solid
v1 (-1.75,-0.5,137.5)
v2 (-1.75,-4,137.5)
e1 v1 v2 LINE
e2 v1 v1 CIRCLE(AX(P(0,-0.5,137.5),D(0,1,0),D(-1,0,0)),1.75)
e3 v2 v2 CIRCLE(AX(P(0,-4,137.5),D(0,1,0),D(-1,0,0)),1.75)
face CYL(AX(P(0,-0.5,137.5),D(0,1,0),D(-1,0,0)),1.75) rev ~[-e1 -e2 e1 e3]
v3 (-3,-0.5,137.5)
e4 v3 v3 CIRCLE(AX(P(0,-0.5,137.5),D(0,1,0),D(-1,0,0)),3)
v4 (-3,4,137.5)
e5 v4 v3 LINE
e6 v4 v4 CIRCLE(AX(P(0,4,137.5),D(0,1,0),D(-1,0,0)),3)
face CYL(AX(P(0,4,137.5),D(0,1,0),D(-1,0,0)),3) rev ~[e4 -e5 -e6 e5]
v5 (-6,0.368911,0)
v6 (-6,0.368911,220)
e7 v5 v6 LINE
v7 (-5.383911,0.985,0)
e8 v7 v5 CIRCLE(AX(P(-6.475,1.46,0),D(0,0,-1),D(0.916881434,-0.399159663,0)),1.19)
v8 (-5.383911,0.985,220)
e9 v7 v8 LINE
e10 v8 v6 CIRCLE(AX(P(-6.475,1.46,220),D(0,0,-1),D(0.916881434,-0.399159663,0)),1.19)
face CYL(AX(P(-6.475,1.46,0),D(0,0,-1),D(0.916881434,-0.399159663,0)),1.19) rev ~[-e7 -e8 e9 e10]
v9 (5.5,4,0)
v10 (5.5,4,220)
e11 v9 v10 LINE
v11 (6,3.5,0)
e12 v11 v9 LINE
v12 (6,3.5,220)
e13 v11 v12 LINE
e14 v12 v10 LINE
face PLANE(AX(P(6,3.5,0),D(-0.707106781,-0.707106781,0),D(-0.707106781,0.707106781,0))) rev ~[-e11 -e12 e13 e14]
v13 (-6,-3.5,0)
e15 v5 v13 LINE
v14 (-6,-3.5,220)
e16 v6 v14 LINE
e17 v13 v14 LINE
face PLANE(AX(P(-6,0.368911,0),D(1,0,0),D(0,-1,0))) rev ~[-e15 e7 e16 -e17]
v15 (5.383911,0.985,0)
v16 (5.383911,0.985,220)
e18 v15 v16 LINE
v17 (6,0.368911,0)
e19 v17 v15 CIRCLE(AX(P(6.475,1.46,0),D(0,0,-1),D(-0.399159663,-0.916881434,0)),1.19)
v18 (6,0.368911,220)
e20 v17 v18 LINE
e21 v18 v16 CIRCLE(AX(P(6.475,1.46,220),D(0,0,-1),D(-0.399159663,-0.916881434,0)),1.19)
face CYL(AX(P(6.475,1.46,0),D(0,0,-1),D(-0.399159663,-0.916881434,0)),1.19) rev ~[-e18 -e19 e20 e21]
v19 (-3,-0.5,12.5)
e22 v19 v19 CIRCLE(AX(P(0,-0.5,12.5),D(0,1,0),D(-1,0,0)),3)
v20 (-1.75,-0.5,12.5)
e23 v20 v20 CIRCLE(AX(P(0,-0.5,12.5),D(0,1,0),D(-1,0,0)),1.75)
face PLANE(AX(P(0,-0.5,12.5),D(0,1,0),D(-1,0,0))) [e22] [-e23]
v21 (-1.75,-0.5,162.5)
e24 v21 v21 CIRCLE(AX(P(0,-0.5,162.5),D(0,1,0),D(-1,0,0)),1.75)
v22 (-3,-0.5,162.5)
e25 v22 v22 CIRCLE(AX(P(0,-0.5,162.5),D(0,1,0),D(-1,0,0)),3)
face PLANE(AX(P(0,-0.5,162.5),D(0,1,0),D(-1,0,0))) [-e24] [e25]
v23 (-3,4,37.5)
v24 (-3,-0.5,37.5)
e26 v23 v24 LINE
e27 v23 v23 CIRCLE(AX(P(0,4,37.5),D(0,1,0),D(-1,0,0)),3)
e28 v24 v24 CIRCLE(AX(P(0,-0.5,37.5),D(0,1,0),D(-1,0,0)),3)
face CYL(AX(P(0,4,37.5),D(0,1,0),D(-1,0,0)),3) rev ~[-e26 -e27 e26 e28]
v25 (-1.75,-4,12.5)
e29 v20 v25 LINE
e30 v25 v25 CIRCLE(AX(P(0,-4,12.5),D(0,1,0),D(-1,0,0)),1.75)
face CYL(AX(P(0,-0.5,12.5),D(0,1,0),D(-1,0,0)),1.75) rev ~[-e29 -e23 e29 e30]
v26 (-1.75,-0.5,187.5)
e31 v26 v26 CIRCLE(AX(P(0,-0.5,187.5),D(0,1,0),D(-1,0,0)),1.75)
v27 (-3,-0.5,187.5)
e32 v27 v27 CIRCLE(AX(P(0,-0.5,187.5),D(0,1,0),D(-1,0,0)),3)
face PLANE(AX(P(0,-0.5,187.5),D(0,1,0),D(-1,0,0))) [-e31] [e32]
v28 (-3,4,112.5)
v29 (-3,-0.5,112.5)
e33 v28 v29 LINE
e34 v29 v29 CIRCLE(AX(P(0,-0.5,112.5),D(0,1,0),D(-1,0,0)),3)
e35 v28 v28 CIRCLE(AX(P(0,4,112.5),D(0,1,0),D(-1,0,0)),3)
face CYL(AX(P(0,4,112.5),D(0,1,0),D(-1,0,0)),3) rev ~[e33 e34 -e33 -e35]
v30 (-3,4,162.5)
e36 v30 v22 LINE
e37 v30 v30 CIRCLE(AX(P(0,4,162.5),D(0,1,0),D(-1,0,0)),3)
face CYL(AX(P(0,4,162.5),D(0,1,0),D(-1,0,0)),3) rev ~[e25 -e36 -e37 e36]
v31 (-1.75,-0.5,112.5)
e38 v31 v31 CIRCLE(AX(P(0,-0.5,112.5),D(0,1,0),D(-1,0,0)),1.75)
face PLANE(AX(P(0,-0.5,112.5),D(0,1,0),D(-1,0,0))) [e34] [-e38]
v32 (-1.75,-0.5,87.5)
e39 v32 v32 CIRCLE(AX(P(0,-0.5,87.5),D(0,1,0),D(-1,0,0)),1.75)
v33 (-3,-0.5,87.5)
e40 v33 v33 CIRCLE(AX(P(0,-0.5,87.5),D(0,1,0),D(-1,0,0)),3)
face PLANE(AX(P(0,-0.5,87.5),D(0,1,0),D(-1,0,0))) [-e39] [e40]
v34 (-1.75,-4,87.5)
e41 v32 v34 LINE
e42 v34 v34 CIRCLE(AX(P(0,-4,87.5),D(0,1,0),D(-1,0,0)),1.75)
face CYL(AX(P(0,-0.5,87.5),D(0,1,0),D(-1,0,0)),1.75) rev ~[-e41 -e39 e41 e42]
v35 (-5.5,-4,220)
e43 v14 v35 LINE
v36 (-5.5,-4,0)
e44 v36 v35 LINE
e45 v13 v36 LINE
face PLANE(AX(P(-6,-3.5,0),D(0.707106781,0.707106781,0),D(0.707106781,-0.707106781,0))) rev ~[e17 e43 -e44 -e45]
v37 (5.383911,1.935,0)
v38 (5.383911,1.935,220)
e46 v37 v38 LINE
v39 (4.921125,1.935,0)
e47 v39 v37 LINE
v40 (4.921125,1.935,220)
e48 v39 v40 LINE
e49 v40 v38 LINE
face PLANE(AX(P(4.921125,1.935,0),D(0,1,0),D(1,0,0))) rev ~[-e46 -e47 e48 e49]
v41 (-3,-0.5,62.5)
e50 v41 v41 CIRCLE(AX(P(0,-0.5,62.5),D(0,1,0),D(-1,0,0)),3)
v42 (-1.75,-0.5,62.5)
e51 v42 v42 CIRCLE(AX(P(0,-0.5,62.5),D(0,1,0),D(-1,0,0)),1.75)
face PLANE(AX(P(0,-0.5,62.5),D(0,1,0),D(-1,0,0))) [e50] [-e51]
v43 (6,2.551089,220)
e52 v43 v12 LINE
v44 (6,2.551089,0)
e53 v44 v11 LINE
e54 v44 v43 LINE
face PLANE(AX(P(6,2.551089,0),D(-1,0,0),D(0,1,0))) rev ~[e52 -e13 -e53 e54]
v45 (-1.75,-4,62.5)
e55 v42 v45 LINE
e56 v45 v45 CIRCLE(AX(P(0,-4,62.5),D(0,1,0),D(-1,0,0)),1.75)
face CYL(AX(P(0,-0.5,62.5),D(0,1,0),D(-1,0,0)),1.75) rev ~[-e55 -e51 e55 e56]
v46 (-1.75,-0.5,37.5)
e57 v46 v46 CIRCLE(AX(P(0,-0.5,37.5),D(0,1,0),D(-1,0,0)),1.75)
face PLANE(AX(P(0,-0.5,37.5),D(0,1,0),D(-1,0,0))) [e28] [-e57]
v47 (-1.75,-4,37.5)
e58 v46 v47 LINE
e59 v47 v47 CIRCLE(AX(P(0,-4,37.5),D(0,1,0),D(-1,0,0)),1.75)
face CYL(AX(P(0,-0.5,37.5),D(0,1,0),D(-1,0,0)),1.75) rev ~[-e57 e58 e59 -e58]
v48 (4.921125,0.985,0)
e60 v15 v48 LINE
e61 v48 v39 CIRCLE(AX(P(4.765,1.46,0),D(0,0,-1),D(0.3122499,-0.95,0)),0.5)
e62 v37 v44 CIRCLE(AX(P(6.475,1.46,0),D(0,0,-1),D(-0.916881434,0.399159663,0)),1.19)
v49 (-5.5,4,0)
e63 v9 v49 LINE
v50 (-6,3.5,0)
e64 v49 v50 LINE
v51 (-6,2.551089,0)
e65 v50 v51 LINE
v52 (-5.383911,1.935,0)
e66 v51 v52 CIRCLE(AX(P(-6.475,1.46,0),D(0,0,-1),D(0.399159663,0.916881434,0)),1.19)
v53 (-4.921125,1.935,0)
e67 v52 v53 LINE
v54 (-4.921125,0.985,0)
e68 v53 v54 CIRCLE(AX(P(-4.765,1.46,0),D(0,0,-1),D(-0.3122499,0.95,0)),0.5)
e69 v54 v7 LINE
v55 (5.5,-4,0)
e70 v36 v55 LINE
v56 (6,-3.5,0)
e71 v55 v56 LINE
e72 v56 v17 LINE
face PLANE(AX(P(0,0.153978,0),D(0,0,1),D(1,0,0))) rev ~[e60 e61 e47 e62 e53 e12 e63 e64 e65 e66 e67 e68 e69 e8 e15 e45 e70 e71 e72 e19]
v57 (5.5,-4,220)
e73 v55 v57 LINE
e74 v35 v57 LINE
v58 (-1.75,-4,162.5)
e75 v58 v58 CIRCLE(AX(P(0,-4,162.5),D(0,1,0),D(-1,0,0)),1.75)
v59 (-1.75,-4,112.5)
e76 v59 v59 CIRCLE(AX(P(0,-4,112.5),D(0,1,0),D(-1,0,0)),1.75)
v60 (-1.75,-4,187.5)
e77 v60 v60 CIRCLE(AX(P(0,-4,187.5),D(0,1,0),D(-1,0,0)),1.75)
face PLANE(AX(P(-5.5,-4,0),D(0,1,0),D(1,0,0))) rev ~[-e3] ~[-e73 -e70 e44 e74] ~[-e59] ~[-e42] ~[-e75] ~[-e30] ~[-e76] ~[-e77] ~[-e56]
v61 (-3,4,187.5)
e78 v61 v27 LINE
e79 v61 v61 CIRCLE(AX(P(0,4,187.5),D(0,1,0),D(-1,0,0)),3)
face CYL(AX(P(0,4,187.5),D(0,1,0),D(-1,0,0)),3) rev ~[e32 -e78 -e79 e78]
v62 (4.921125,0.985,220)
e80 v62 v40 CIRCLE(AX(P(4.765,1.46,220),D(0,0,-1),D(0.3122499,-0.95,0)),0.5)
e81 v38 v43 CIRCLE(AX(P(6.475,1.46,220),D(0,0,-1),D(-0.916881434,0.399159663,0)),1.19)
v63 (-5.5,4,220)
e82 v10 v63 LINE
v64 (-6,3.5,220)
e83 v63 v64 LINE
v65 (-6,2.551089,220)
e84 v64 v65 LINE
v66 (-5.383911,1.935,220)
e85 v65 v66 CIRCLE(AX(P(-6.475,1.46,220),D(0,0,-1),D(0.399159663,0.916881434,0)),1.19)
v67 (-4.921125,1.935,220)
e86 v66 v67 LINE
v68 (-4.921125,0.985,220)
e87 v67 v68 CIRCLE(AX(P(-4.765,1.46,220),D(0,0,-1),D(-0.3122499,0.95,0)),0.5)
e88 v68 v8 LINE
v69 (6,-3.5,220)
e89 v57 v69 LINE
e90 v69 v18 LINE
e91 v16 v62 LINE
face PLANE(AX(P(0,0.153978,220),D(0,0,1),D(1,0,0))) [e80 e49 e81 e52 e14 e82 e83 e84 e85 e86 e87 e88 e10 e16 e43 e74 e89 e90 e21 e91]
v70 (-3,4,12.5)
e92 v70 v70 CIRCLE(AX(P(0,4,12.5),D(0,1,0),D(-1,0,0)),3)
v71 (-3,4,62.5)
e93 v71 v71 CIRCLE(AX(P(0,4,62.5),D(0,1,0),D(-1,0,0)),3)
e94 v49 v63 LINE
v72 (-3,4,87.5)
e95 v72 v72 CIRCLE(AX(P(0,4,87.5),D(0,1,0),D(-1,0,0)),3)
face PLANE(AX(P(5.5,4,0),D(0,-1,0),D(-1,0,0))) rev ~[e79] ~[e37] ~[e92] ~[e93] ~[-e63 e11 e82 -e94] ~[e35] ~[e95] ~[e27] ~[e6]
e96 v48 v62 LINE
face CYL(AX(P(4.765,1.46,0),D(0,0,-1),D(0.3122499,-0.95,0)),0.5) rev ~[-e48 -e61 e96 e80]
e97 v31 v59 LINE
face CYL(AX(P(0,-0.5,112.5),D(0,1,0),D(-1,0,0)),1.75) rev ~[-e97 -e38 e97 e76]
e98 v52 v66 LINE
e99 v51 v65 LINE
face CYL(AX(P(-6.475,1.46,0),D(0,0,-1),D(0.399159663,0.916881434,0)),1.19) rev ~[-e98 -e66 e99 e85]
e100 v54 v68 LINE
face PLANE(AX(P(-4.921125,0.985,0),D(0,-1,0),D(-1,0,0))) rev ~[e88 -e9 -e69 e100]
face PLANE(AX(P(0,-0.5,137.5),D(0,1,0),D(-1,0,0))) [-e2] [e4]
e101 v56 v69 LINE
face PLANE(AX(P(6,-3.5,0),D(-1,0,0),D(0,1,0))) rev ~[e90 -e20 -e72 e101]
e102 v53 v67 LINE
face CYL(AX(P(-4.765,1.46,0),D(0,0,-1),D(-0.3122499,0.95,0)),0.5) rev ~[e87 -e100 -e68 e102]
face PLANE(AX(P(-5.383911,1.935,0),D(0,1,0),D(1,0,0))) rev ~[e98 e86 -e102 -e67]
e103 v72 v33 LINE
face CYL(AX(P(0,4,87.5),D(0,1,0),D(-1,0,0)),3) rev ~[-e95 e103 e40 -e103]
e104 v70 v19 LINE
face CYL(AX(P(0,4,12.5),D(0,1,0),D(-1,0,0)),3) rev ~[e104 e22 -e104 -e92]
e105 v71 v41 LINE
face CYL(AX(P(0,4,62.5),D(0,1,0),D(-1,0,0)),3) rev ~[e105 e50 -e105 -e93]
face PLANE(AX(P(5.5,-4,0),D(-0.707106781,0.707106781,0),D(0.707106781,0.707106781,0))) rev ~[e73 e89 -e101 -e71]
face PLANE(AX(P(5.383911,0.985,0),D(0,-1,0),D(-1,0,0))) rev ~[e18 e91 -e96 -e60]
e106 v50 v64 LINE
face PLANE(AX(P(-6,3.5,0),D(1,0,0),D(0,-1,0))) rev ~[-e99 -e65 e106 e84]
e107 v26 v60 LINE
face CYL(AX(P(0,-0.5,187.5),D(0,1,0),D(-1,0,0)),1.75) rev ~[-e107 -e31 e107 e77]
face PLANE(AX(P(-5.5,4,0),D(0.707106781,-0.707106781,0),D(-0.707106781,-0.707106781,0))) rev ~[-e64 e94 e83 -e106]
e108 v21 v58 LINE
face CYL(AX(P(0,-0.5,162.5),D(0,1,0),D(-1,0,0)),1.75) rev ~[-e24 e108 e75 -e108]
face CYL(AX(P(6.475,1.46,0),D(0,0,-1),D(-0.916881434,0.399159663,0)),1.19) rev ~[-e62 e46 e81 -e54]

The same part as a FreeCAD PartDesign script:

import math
import FreeCAD as App
import Part
import Sketcher
from FreeCAD import Vector
Q = App.Units.Quantity

doc = App.newDocument("Part")
body = doc.addObject("PartDesign::Body", "Body")

# Sketch on XY plane
sketch1 = body.newObject("Sketcher::SketchObject", "Sketch")
sketch1.AttachmentSupport = (doc.getObject("XY_Plane"), [""])
sketch1.MapMode = "FlatFace"
sketch1.addGeometry([
    Part.LineSegment(Vector(6, -3.5, 0), Vector(6, 0.368911, 0)),  # 0
    Part.ArcOfCircle(Part.Circle(Vector(6.475, 1.46, 0), Vector(0, 0, 1), 1.19), math.radians(-156.474345), math.radians(-113.525655)),  # 1
    Part.LineSegment(Vector(5.383911, 0.985, 0), Vector(4.921125, 0.985, 0)),  # 2
    Part.ArcOfCircle(Part.Circle(Vector(4.765, 1.46, 0), Vector(0, 0, 1), 0.5), math.radians(71.805128), math.radians(288.194872)),  # 3
    Part.LineSegment(Vector(4.921125, 1.935, 0), Vector(5.383911, 1.935, 0)),  # 4
    Part.ArcOfCircle(Part.Circle(Vector(6.475, 1.46, 0), Vector(0, 0, 1), 1.19), math.radians(113.525655), math.radians(156.474345)),  # 5
    Part.LineSegment(Vector(6, 2.551089, 0), Vector(6, 3.5, 0)),  # 6
    Part.LineSegment(Vector(6, 3.5, 0), Vector(5.5, 4, 0)),  # 7
    Part.LineSegment(Vector(5.5, 4, 0), Vector(-5.5, 4, 0)),  # 8
    Part.LineSegment(Vector(-5.5, 4, 0), Vector(-6, 3.5, 0)),  # 9
    Part.LineSegment(Vector(-6, 3.5, 0), Vector(-6, 2.551089, 0)),  # 10
    Part.ArcOfCircle(Part.Circle(Vector(-6.475, 1.46, 0), Vector(0, 0, 1), 1.19), math.radians(23.525655), math.radians(66.474345)),  # 11
    Part.LineSegment(Vector(-5.383911, 1.935, 0), Vector(-4.921125, 1.935, 0)),  # 12
    Part.ArcOfCircle(Part.Circle(Vector(-4.765, 1.46, 0), Vector(0, 0, 1), 0.5), math.radians(-108.194872), math.radians(108.194872)),  # 13
    Part.LineSegment(Vector(-4.921125, 0.985, 0), Vector(-5.383911, 0.985, 0)),  # 14
    Part.ArcOfCircle(Part.Circle(Vector(-6.475, 1.46, 0), Vector(0, 0, 1), 1.19), math.radians(-66.474345), math.radians(-23.525655)),  # 15
    Part.LineSegment(Vector(-6, 0.368911, 0), Vector(-6, -3.5, 0)),  # 16
    Part.LineSegment(Vector(-6, -3.5, 0), Vector(-5.5, -4, 0)),  # 17
    Part.LineSegment(Vector(-5.5, -4, 0), Vector(5.5, -4, 0)),  # 18
    Part.LineSegment(Vector(5.5, -4, 0), Vector(6, -3.5, 0)),  # 19
], False)
sketch1.addConstraint([
    Sketcher.Constraint("Coincident", 0, 2, 1, 2),
    Sketcher.Constraint("Coincident", 1, 1, 2, 1),
    Sketcher.Constraint("Coincident", 2, 2, 3, 2),
    Sketcher.Constraint("Coincident", 3, 1, 4, 1),
    Sketcher.Constraint("Coincident", 4, 2, 5, 2),
    Sketcher.Constraint("Coincident", 5, 1, 6, 1),
    Sketcher.Constraint("Coincident", 6, 2, 7, 1),
    Sketcher.Constraint("Coincident", 7, 2, 8, 1),
    Sketcher.Constraint("Coincident", 8, 2, 9, 1),
    Sketcher.Constraint("Coincident", 9, 2, 10, 1),
    Sketcher.Constraint("Coincident", 10, 2, 11, 2),
    Sketcher.Constraint("Coincident", 11, 1, 12, 1),
    Sketcher.Constraint("Coincident", 12, 2, 13, 2),
    Sketcher.Constraint("Coincident", 13, 1, 14, 1),
    Sketcher.Constraint("Coincident", 14, 2, 15, 2),
    Sketcher.Constraint("Coincident", 15, 1, 16, 1),
    Sketcher.Constraint("Coincident", 16, 2, 17, 1),
    Sketcher.Constraint("Coincident", 17, 2, 18, 1),
    Sketcher.Constraint("Coincident", 18, 2, 19, 1),
    Sketcher.Constraint("Coincident", 19, 2, 0, 1),
    Sketcher.Constraint("Vertical", 0),
    Sketcher.Constraint("Horizontal", 2),
    Sketcher.Constraint("Horizontal", 4),
    Sketcher.Constraint("Vertical", 6),
    Sketcher.Constraint("Horizontal", 8),
    Sketcher.Constraint("Vertical", 10),
    Sketcher.Constraint("Horizontal", 12),
    Sketcher.Constraint("Horizontal", 14),
    Sketcher.Constraint("Vertical", 16),
    Sketcher.Constraint("Horizontal", 18),
    Sketcher.Constraint("Coincident", 5, 3, 1, 3),
    Sketcher.Constraint("Coincident", 15, 3, 11, 3),
    Sketcher.Constraint("Equal", 1, 5),
    Sketcher.Constraint("Equal", 5, 11),
    Sketcher.Constraint("Equal", 3, 13),
    Sketcher.Constraint("Equal", 11, 15),
    Sketcher.Constraint("Symmetric", 6, 2, 16, 2, -1, 1),
    Sketcher.Constraint("Symmetric", 7, 2, 17, 2, -1, 1),
    Sketcher.Constraint("Symmetric", 9, 2, 19, 2, -1, 1),
    Sketcher.Constraint("Symmetric", 1, 3, 11, 3, -2),
    Sketcher.Constraint("Symmetric", 3, 3, 13, 3, -2),
    Sketcher.Constraint("Symmetric", 6, 2, 9, 2, -2),
    Sketcher.Constraint("Perpendicular", 7, 9),
    Sketcher.Constraint("Perpendicular", 17, 19),
    Sketcher.Constraint("Horizontal", 1, 3, 3, 3),
    Sketcher.Constraint("Horizontal", 4, 2, 11, 1),
    Sketcher.Constraint("Horizontal", 2, 2, 13, 1),
    Sketcher.Constraint("Vertical", 2, 2, 3, 1),
    Sketcher.Constraint("Vertical", 8, 2, 17, 2),
    Sketcher.Constraint("Radius", 3, Q("0.5 mm")),
    Sketcher.Constraint("DistanceX", 8, 2, 8, 1, Q("11 mm")),
    Sketcher.Constraint("Radius", 1, Q("1.19 mm")),
    Sketcher.Constraint("DistanceX", -1, 1, 0, 2, Q("6 mm")),
    Sketcher.Constraint("DistanceY", -1, 1, 7, 2, Q("4 mm")),
    Sketcher.Constraint("DistanceY", -1, 1, 1, 3, Q("1.46 mm")),
    Sketcher.Constraint("DistanceX", 3, 3, 1, 3, Q("1.71 mm")),
    Sketcher.Constraint("DistanceX", 11, 3, 3, 3, Q("11.24 mm")),
    Sketcher.Constraint("DistanceY", 2, 2, 3, 1, Q("0.95 mm")),
])
pad1 = body.newObject("PartDesign::Pad", "Pad")
pad1.Profile = sketch1
pad1.Length = 220

# Sketch on XZ plane
sketch2 = body.newObject("Sketcher::SketchObject", "Sketch001")
sketch2.AttachmentSupport = (doc.getObject("XZ_Plane"), [""])
sketch2.MapMode = "FlatFace"
sketch2.AttachmentOffset = App.Placement(Vector(0, 0, -4), App.Rotation())
sketch2.addGeometry(Part.Circle(Vector(0, 12.5, 0), Vector(0, 0, 1), 3), False)
sketch2.addConstraint([
    Sketcher.Constraint("PointOnObject", 0, 3, -2),
    Sketcher.Constraint("Diameter", 0, Q("6 mm")),
    Sketcher.Constraint("DistanceY", -1, 1, 0, 3, Q("12.5 mm")),
])
pocket1 = body.newObject("PartDesign::Pocket", "Pocket")
pocket1.Profile = sketch2
pocket1.Length = 4.5
pocket1.Reversed = True

# Sketch on XZ plane
sketch3 = body.newObject("Sketcher::SketchObject", "Sketch002")
sketch3.AttachmentSupport = (doc.getObject("XZ_Plane"), [""])
sketch3.MapMode = "FlatFace"
sketch3.AttachmentOffset = App.Placement(Vector(0, 0, 0.5), App.Rotation())
sketch3.addGeometry(Part.Circle(Vector(0, 12.5, 0), Vector(0, 0, 1), 1.75), False)
sketch3.addConstraint([
    Sketcher.Constraint("PointOnObject", 0, 3, -2),
    Sketcher.Constraint("Diameter", 0, Q("3.5 mm")),
    Sketcher.Constraint("DistanceY", -1, 1, 0, 3, Q("12.5 mm")),
])
pocket2 = body.newObject("PartDesign::Pocket", "Pocket001")
pocket2.Profile = sketch3
pocket2.Type = "ThroughAll"
pocket2.Reversed = True
doc.recompute()

linearpattern = body.newObject("PartDesign::LinearPattern", "LinearPattern")
linearpattern.Originals = [pocket1, pocket2]
linearpattern.Direction = (doc.getObject("Z_Axis"), [""])
linearpattern.Mode = "offset"
linearpattern.Offset = 25
linearpattern.Occurrences = 8
body.Tip = linearpattern

doc.recompute()
